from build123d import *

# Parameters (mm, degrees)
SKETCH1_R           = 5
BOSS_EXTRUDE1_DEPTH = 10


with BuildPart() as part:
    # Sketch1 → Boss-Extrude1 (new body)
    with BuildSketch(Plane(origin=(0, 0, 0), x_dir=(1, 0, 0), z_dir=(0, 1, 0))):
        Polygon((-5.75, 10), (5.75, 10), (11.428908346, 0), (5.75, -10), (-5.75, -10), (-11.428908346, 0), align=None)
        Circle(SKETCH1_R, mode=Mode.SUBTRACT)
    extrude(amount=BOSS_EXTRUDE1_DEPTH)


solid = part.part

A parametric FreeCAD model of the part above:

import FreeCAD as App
import Part
import Sketcher

doc = App.newDocument("Part")
body = doc.addObject("PartDesign::Body", "Body")

# Sketch on XZ plane
sketch1 = body.newObject("Sketcher::SketchObject", "Sketch")
sketch1.AttachmentSupport = (doc.getObject("XZ_Plane"), [""])
sketch1.MapMode = "FlatFace"
sketch1.addGeometry([
    Part.LineSegment(App.Vector(5.75, -10, 0), App.Vector(-5.75, -10, 0)),  # 0
    Part.LineSegment(App.Vector(-5.75, -10, 0), App.Vector(-11.428908, 0, 0)),  # 1
    Part.LineSegment(App.Vector(-11.428908, 0, 0), App.Vector(-5.75, 10, 0)),  # 2
    Part.LineSegment(App.Vector(-5.75, 10, 0), App.Vector(5.75, 10, 0)),  # 3
    Part.LineSegment(App.Vector(5.75, 10, 0), App.Vector(11.428908, 0, 0)),  # 4
    Part.LineSegment(App.Vector(11.428908, 0, 0), App.Vector(5.75, -10, 0)),  # 5
    Part.Circle(App.Vector(0, 0, 0), App.Vector(0, 0, 1), 5),  # 6
], False)
sketch1.addConstraint([
    Sketcher.Constraint("Coincident", 0, 2, 1, 1),
    Sketcher.Constraint("Coincident", 1, 2, 2, 1),
    Sketcher.Constraint("Coincident", 2, 2, 3, 1),
    Sketcher.Constraint("Coincident", 3, 2, 4, 1),
    Sketcher.Constraint("Coincident", 4, 2, 5, 1),
    Sketcher.Constraint("Coincident", 5, 2, 0, 1),
    Sketcher.Constraint("Horizontal", 0),
    Sketcher.Constraint("Horizontal", 3),
    Sketcher.Constraint("Coincident", 6, 3, -1, 1),
    Sketcher.Constraint("Symmetric", 0, 2, 3, 2, -1, 1),
    Sketcher.Constraint("Symmetric", 1, 2, 4, 2, -1, 1),
    Sketcher.Constraint("PointOnObject", 1, 2, -1),
    Sketcher.Constraint("Parallel", 2, 5),
    Sketcher.Constraint("Vertical", 0, 2, 2, 2),
    Sketcher.Constraint("Diameter", 6, 10.0),
    Sketcher.Constraint("DistanceX", 0, 2, 0, 1, 11.5),
    Sketcher.Constraint("DistanceY", 0, 2, -1, 1, 10.0),
    Sketcher.Constraint("Distance", 1, 11.5),
])
pad1 = body.newObject("PartDesign::Pad", "Pad")
pad1.Profile = sketch1
pad1.Length = 10
pad1.Reversed = True

doc.recompute()
